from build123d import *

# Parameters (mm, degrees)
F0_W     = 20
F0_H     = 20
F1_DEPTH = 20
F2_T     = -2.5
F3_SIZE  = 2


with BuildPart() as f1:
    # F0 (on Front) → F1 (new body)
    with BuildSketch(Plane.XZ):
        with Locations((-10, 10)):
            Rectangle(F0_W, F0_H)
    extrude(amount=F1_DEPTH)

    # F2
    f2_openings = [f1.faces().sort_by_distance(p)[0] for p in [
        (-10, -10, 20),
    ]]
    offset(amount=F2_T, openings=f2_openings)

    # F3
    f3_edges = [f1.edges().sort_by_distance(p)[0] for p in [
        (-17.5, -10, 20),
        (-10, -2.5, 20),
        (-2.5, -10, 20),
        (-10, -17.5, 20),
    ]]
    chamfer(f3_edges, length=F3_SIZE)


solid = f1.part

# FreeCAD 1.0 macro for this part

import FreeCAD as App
import Part
import Sketcher


def edges_at(feature, points):
    """Names of the edges that pass closest to the given points."""
    edges = feature.Shape.Edges
    near = lambda p: min(range(len(edges)), key=lambda i: edges[i].distToShape(Part.Vertex(*p))[0])
    return sorted({f"Edge{near(p) + 1}" for p in points})


def faces_at(feature, points):
    """Names of the faces that lie closest to the given points."""
    faces = feature.Shape.Faces
    near = lambda p: min(range(len(faces)), key=lambda i: faces[i].distToShape(Part.Vertex(*p))[0])
    return sorted({f"Face{near(p) + 1}" for p in points})


def add_polygon(sketch, points):
    """Adds a closed chain of lines whose ends are joined by coincident constraints."""
    first, n = sketch.GeometryCount, len(points)
    for a, b in zip(points, points[1:] + points[:1]):
        sketch.addGeometry(Part.LineSegment(App.Vector(*a, 0), App.Vector(*b, 0)), False)
    for i in range(n):
        sketch.addConstraint(Sketcher.Constraint("Coincident", first + i, 2, first + (i + 1) % n, 1))

doc = App.newDocument("Part")
body = doc.addObject("PartDesign::Body", "Body")

# Sketch on XZ plane
sketch1 = body.newObject("Sketcher::SketchObject", "Sketch")
sketch1.AttachmentSupport = (doc.getObject("XZ_Plane"), [""])
sketch1.MapMode = "FlatFace"
add_polygon(sketch1, [(-20, 20), (-20, 0), (0, 0), (0, 20)])  # lines 0-3
sketch1.addConstraint(Sketcher.Constraint("Vertical", 0))
sketch1.addConstraint(Sketcher.Constraint("Horizontal", 1))
sketch1.addConstraint(Sketcher.Constraint("Vertical", 2))
sketch1.addConstraint(Sketcher.Constraint("Horizontal", 3))
sketch1.addConstraint(Sketcher.Constraint("Coincident", 1, 2, -1, 1))
sketch1.addConstraint(Sketcher.Constraint("Equal", 3, 0))
sketch1.addConstraint(Sketcher.Constraint("DistanceX", 1, 1, 1, 2, 20.0))
pad1 = body.newObject("PartDesign::Pad", "Pad")
pad1.Profile = sketch1
pad1.Length = 20
doc.recompute()

thickness = body.newObject("PartDesign::Thickness", "Thickness")
thickness.Base = (pad1, faces_at(pad1, [(-10, -10, 20)]))
thickness.Value = 2.5
thickness.Reversed = True
thickness.Join = "Arc"
doc.recompute()

chamfer = body.newObject("PartDesign::Chamfer", "Chamfer")
chamfer.Base = (thickness, edges_at(thickness, [
    (-17.5, -10, 20),
    (-10, -2.5, 20),
    (-2.5, -10, 20),
    (-10, -17.5, 20),
]))
chamfer.Size = 2

doc.recompute()
